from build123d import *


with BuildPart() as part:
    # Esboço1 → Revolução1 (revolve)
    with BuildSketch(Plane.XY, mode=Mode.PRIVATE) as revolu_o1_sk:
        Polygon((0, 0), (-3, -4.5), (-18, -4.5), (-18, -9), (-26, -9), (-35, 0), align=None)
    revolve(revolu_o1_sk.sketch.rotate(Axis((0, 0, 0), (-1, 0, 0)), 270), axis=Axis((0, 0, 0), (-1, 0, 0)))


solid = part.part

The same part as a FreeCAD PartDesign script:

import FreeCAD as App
import Part
import Sketcher
from FreeCAD import Vector
Q = App.Units.Quantity


def add_polygon(sketch, points):
    """Adds a closed chain of lines whose ends are joined by coincident constraints."""
    first, n = sketch.GeometryCount, len(points)
    for a, b in zip(points, points[1:] + points[:1]):
        sketch.addGeometry(Part.LineSegment(App.Vector(*a, 0), App.Vector(*b, 0)), False)
    for i in range(n):
        sketch.addConstraint(Sketcher.Constraint("Coincident", first + i, 2, first + (i + 1) % n, 1))

doc = App.newDocument("Part")
body = doc.addObject("PartDesign::Body", "Body")

# Sketch on XY plane
sketch1 = body.newObject("Sketcher::SketchObject", "Sketch")
sketch1.AttachmentSupport = (doc.getObject("XY_Plane"), [""])
sketch1.MapMode = "FlatFace"
add_polygon(sketch1, [(-3, -4.5), (0, 0), (-35, 0), (-26, -9), (-18, -9), (-18, -4.5)])  # lines 0-5
sketch1.addConstraint(Sketcher.Constraint("Horizontal", 1))
sketch1.addConstraint(Sketcher.Constraint("Horizontal", 3))
sketch1.addConstraint(Sketcher.Constraint("Vertical", 4))
sketch1.addConstraint(Sketcher.Constraint("Horizontal", 5))
sketch1.addConstraint(Sketcher.Constraint("Coincident", 0, 2, -1, 1))
sketch1.addConstraint(Sketcher.Constraint("DistanceX", 1, 2, 1, 1, 35.0))
sketch1.addConstraint(Sketcher.Constraint("DistanceX", 3, 1, 3, 2, 8.0))
sketch1.addConstraint(Sketcher.Constraint("DistanceX", 5, 1, 5, 2, 15.0))
sketch1.addConstraint(Sketcher.Constraint("Angle", 2, Q("-45 deg")))
sketch1.addConstraint(Sketcher.Constraint("DistanceY", 4, 1, 4, 2, 4.5))
sketch1.addConstraint(Sketcher.Constraint("DistanceX", 2, 2, -1, 1, 26.0))
revolution = body.newObject("PartDesign::Revolution", "Revolution")
revolution.Profile = sketch1
revolution.ReferenceAxis = (sketch1, ["H_Axis"])
revolution.Angle = 360

doc.recompute()
